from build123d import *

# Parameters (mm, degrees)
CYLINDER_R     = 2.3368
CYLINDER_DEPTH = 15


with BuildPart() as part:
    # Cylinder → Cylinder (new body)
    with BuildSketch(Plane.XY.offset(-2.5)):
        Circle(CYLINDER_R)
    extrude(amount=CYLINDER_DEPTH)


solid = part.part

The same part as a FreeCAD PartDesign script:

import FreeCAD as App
import Part
import Sketcher
from FreeCAD import Vector

doc = App.newDocument("Part")
params = doc.addObject("Spreadsheet::Sheet", "Params")
for row, (alias, value) in enumerate([
    ("pad1_length", "15 mm"),
], start=1):
    params.set(f"A{row}", alias)
    params.set(f"B{row}", "=" + value)
    params.setAlias(f"B{row}", alias)

body = doc.addObject("PartDesign::Body", "Body")

# Sketch on XY plane
sketch1 = body.newObject("Sketcher::SketchObject", "Sketch")
sketch1.AttachmentSupport = (doc.getObject("XY_Plane"), [""])
sketch1.MapMode = "FlatFace"
sketch1.AttachmentOffset = App.Placement(Vector(0, 0, -2.5), App.Rotation())
sketch1.addGeometry(Part.Circle(Vector(0, 0, 0), Vector(0, 0, 1), 2.3), False)
sketch1.addConstraint([
    Sketcher.Constraint("Coincident", 0, 3, -1, 1),
    Sketcher.Constraint("Diameter", 0, 4.6736),
])
pad1 = body.newObject("PartDesign::Pad", "Pad")
pad1.Profile = sketch1
pad1.setExpression("Length", "Params.pad1_length")

doc.recompute()
